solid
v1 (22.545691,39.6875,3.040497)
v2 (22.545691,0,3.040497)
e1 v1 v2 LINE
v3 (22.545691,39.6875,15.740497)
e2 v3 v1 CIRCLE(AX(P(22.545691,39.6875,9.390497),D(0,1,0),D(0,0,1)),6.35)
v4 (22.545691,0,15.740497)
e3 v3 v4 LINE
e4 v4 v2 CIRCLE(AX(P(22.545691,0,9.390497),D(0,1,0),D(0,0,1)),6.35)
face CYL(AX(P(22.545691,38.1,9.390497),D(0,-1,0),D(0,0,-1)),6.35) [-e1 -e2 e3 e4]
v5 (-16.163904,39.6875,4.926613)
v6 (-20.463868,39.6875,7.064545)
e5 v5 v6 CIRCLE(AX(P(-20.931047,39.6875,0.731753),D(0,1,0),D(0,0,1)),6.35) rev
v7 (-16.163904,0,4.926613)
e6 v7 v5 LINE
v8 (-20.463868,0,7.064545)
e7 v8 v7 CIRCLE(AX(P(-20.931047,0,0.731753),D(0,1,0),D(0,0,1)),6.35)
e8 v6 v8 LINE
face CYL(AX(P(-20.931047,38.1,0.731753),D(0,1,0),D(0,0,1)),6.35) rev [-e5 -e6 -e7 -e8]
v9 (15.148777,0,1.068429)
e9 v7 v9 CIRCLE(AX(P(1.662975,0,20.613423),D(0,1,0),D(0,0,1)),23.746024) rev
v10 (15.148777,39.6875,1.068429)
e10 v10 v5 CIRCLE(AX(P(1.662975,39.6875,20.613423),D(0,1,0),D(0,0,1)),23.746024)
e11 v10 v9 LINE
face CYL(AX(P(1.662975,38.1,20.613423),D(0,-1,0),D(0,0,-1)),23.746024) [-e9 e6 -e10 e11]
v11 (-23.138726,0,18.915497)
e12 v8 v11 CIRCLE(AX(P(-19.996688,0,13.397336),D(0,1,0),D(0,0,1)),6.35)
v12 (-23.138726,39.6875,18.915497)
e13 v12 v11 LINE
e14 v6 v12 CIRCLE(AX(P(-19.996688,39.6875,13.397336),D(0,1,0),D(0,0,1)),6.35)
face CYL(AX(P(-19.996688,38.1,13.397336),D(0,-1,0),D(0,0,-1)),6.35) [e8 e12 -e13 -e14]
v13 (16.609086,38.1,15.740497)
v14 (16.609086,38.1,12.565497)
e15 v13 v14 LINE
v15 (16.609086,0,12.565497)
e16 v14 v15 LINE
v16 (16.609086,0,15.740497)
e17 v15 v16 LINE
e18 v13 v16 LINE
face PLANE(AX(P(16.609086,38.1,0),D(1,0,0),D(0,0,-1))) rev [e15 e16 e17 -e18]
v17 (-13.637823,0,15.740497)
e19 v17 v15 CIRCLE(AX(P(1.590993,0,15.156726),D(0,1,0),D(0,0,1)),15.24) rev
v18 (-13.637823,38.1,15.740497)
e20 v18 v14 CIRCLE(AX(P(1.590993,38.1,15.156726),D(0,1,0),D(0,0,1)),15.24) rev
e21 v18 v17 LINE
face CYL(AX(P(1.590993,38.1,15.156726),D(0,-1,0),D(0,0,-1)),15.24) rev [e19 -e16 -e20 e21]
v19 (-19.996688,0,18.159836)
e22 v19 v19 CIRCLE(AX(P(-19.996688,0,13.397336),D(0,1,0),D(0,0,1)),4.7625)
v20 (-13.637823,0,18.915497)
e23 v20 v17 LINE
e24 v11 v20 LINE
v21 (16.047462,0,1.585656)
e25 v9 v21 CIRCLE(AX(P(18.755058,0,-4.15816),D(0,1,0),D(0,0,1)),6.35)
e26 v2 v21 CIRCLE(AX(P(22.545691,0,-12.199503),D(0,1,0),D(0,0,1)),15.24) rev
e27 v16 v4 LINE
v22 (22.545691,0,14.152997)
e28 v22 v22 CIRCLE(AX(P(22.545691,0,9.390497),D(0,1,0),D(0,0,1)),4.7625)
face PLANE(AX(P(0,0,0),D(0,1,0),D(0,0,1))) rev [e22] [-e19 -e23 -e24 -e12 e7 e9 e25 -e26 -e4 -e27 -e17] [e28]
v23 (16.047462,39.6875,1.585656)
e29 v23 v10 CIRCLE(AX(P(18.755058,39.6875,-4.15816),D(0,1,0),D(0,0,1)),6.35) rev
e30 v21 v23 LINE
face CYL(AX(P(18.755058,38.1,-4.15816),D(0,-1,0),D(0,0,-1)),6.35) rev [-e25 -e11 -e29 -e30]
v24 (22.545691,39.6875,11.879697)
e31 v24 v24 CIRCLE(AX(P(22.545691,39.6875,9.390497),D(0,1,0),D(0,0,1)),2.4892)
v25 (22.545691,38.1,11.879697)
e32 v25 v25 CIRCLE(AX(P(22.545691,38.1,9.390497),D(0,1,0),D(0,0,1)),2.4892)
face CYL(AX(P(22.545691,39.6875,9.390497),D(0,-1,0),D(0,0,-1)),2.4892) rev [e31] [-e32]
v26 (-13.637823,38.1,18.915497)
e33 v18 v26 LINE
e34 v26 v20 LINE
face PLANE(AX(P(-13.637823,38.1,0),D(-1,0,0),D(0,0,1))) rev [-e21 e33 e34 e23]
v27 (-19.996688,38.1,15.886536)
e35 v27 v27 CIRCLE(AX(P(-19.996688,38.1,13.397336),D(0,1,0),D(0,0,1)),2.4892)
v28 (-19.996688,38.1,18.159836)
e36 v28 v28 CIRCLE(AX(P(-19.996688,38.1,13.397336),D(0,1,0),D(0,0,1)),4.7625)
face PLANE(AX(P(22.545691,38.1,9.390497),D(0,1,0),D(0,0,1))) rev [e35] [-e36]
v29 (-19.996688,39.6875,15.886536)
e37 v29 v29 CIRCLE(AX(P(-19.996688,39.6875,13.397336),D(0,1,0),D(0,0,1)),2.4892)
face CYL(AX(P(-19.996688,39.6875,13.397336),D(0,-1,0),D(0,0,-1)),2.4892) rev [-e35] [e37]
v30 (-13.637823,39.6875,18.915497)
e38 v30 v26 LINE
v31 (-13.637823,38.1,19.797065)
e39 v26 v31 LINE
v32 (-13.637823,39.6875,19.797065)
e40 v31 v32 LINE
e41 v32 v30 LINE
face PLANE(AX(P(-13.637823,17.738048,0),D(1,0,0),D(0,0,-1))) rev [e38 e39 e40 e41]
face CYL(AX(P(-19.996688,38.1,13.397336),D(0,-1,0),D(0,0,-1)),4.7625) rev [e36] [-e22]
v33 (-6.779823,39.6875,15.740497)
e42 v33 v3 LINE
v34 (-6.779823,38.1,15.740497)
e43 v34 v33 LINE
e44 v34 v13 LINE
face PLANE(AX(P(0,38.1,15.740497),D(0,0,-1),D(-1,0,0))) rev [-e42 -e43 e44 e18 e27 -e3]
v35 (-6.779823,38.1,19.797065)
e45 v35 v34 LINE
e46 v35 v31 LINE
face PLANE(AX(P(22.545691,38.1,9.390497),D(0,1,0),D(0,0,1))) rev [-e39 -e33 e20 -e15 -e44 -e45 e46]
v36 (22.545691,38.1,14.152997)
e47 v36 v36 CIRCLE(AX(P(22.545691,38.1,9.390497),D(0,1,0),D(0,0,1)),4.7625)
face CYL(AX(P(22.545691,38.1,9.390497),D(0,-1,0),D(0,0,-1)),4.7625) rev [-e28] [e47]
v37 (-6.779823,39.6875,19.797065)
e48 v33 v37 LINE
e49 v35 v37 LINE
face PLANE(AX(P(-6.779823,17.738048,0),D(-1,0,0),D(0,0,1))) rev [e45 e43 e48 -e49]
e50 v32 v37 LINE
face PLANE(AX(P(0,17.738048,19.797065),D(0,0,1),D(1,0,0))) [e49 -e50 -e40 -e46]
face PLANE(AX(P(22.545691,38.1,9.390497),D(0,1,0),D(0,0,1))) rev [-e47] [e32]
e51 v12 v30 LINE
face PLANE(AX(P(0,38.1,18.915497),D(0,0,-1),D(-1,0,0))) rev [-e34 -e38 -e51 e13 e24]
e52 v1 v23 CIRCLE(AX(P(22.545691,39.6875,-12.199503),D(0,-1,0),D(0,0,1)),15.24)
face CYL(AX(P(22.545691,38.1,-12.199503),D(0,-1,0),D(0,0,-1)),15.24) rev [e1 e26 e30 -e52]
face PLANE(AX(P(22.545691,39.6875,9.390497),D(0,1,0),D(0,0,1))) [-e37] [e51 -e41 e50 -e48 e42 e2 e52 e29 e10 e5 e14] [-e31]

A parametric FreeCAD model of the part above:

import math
import FreeCAD as App
import Part
import Sketcher
Q = App.Units.Quantity


def edges_at(feature, points):
    """Names of the edges that pass closest to the given points."""
    edges = feature.Shape.Edges
    near = lambda p: min(range(len(edges)), key=lambda i: edges[i].distToShape(Part.Vertex(*p))[0])
    return sorted({f"Edge{near(p) + 1}" for p in points})


def add_polygon(sketch, points):
    """Adds a closed chain of lines whose ends are joined by coincident constraints."""
    first, n = sketch.GeometryCount, len(points)
    for a, b in zip(points, points[1:] + points[:1]):
        sketch.addGeometry(Part.LineSegment(App.Vector(*a, 0), App.Vector(*b, 0)), False)
    for i in range(n):
        sketch.addConstraint(Sketcher.Constraint("Coincident", first + i, 2, first + (i + 1) % n, 1))

doc = App.newDocument("Part")
body = doc.addObject("PartDesign::Body", "Body")

# Sketch on XZ plane
sketch1 = doc.addObject("Sketcher::SketchObject", "Sketch")
body.addObject(sketch1)
sketch1.AttachmentSupport = (doc.XZ_Plane, [""])
sketch1.MapMode = "FlatFace"
sketch1.addGeometry([
    Part.LineSegment(App.Vector(-13.637823, 18.915497, 0), App.Vector(-13.637823, 15.740497, 0)),  # 0
    Part.ArcOfCircle(Part.Circle(App.Vector(1.590993, 15.156726, 0), App.Vector(0, 0, 1), 15.24), math.radians(177.804739), math.radians(350.210543)),  # 1
    Part.LineSegment(App.Vector(16.609086, 12.565497, 0), App.Vector(16.609086, 15.740497, 0)),  # 2
    Part.LineSegment(App.Vector(16.609086, 15.740497, 0), App.Vector(22.545691, 15.740497, 0)),  # 3
    Part.ArcOfCircle(Part.Circle(App.Vector(22.545691, 9.390497, 0), App.Vector(0, 0, 1), 6.35), math.radians(-90), math.radians(90)),  # 4
    Part.ArcOfCircle(Part.Circle(App.Vector(22.545691, -12.199503, 0), App.Vector(0, 0, 1), 15.24), math.radians(90), math.radians(117.568097)),  # 5
    Part.ArcOfCircle(Part.Circle(App.Vector(1.662975, 20.613423, 0), App.Vector(0, 0, 1), 23.746023), math.radians(-144.380709), math.radians(-54.380709)),  # 6
    Part.ArcOfCircle(Part.Circle(App.Vector(-19.93993, -3.112506, 0), App.Vector(0, 0, 1), 10.16), math.radians(76.918102), math.radians(90.320083)),  # 7
    Part.ArcOfCircle(Part.Circle(App.Vector(-19.996688, 13.397336, 0), App.Vector(0, 0, 1), 6.35), math.radians(119.657161), math.radians(270)),  # 8
    Part.LineSegment(App.Vector(-23.138726, 18.915497, 0), App.Vector(-13.637823, 18.915497, 0)),  # 9
    Part.Circle(App.Vector(-19.996688, 13.397336, 0), App.Vector(0, 0, 1), 4.7625),  # 10
    Part.Circle(App.Vector(22.545691, 9.390497, 0), App.Vector(0, 0, 1), 4.7625),  # 11
], False)
sketch1.addConstraint([
    Sketcher.Constraint("Coincident", 0, 2, 1, 1),
    Sketcher.Constraint("Coincident", 1, 2, 2, 1),
    Sketcher.Constraint("Coincident", 2, 2, 3, 1),
    Sketcher.Constraint("Tangent", 3, 2, 4, 2),
    Sketcher.Constraint("Tangent", 4, 1, 5, 1),
    Sketcher.Constraint("Coincident", 5, 2, 6, 2),
    Sketcher.Constraint("Coincident", 6, 1, 7, 1),
    Sketcher.Constraint("Coincident", 7, 2, 8, 2),
    Sketcher.Constraint("Coincident", 8, 1, 9, 1),
    Sketcher.Constraint("Coincident", 9, 2, 0, 1),
    Sketcher.Constraint("Vertical", 0),
    Sketcher.Constraint("Vertical", 2),
    Sketcher.Constraint("Horizontal", 3),
    Sketcher.Constraint("Horizontal", 9),
    Sketcher.Constraint("Coincident", 10, 3, 8, 3),
    Sketcher.Constraint("Coincident", 11, 3, 4, 3),
    Sketcher.Constraint("Equal", 1, 5),
    Sketcher.Constraint("Equal", 4, 8),
    Sketcher.Constraint("Equal", 10, 11),
    Sketcher.Constraint("Horizontal", 0, 2, 2, 2),
    Sketcher.Constraint("Vertical", 4, 3, 5, 3),
    Sketcher.Constraint("Vertical", 10, 3, 7, 2),
    Sketcher.Constraint("Equal", 0, 2),
    Sketcher.Constraint("Radius", 1, Q("0.6 in")),
    Sketcher.Constraint("Radius", 7, Q("0.4 in")),
    Sketcher.Constraint("Radius", 4, Q("0.25 in")),
    Sketcher.Constraint("Diameter", 10, Q("0.375 in")),
    Sketcher.Constraint("DistanceY", 0, 2, 0, 1, Q("0.125 in")),
    Sketcher.Constraint("Radius", 6, 23.746023),
    Sketcher.Constraint("DistanceX", 1, 3, 4, 3, 20.954699),
    Sketcher.Constraint("DistanceX", 3, 1, 3, 2, 5.936605),
    Sketcher.Constraint("DistanceX", 9, 1, 9, 2, 9.500903),
    Sketcher.Constraint("DistanceX", -1, 1, 4, 3, 22.545691),
    Sketcher.Constraint("DistanceX", 7, 3, -1, 1, 19.93993),
    Sketcher.Constraint("DistanceX", 8, 3, -1, 1, 19.996688),
    Sketcher.Constraint("DistanceX", -1, 1, 5, 2, 15.492581),
    Sketcher.Constraint("DistanceY", -1, 1, 5, 2, 1.310169),
    Sketcher.Constraint("DistanceX", 6, 1, -1, 1, 17.640279),
])
pad1 = doc.addObject("PartDesign::Pad", "Pad")
body.addObject(pad1)
pad1.Profile = sketch1
pad1.Length = Q("1.5 in")
pad1.Reversed = True

# Sketch on XZ plane
sketch2 = doc.addObject("Sketcher::SketchObject", "Sketch001")
body.addObject(sketch2)
sketch2.AttachmentSupport = (doc.XZ_Plane, [""])
sketch2.MapMode = "FlatFace"
sketch2.AttachmentOffset = App.Placement(App.Vector(0, 0, -1.5 * 25.4), App.Rotation())
sketch2.addGeometry([
    Part.LineSegment(App.Vector(-13.637823, 15.740497, 0), App.Vector(-3.503807, 15.740497, 0)),  # 0
    Part.LineSegment(App.Vector(-3.503807, 15.740497, 0), App.Vector(-3.503807, 12.565497, 0)),  # 1
    Part.LineSegment(App.Vector(-3.503807, 12.565497, 0), App.Vector(16.609086, 12.565497, 0)),  # 2
    Part.LineSegment(App.Vector(16.609086, 12.565497, 0), App.Vector(16.609086, 15.740497, 0)),  # 3
    Part.LineSegment(App.Vector(16.609086, 15.740497, 0), App.Vector(22.545691, 15.740497, 0)),  # 4
    Part.ArcOfCircle(Part.Circle(App.Vector(22.545691, 9.390497, 0), App.Vector(0, 0, 1), 6.35), math.radians(-90), math.radians(90)),  # 5
    Part.ArcOfCircle(Part.Circle(App.Vector(22.545691, -12.199503, 0), App.Vector(0, 0, 1), 15.24), math.radians(90), math.radians(117.568097)),  # 6
    Part.ArcOfCircle(Part.Circle(App.Vector(1.662975, 20.613423, 0), App.Vector(0, 0, 1), 23.746023), math.radians(-144.380709), math.radians(-54.380709)),  # 7
    Part.ArcOfCircle(Part.Circle(App.Vector(-19.93993, -3.112506, 0), App.Vector(0, 0, 1), 10.16), math.radians(76.918102), math.radians(90.320083)),  # 8
    Part.ArcOfCircle(Part.Circle(App.Vector(-19.996688, 13.397336, 0), App.Vector(0, 0, 1), 6.35), math.radians(119.657161), math.radians(270)),  # 9
    Part.LineSegment(App.Vector(-23.138726, 18.915497, 0), App.Vector(-13.637823, 18.915497, 0)),  # 10
    Part.LineSegment(App.Vector(-13.637823, 18.915497, 0), App.Vector(-13.637823, 15.740497, 0)),  # 11
    Part.Circle(App.Vector(22.545691, 9.390497, 0), App.Vector(0, 0, 1), 2.4892),  # 12
    Part.Circle(App.Vector(-19.996688, 13.397336, 0), App.Vector(0, 0, 1), 2.4892),  # 13
], False)
sketch2.addConstraint([
    Sketcher.Constraint("Coincident", 0, 2, 1, 1),
    Sketcher.Constraint("Coincident", 1, 2, 2, 1),
    Sketcher.Constraint("Coincident", 2, 2, 3, 1),
    Sketcher.Constraint("Coincident", 3, 2, 4, 1),
    Sketcher.Constraint("Tangent", 4, 2, 5, 2),
    Sketcher.Constraint("Tangent", 5, 1, 6, 1),
    Sketcher.Constraint("Coincident", 6, 2, 7, 2),
    Sketcher.Constraint("Coincident", 7, 1, 8, 1),
    Sketcher.Constraint("Coincident", 8, 2, 9, 2),
    Sketcher.Constraint("Coincident", 9, 1, 10, 1),
    Sketcher.Constraint("Coincident", 10, 2, 11, 1),
    Sketcher.Constraint("Coincident", 11, 2, 0, 1),
    Sketcher.Constraint("Horizontal", 0),
    Sketcher.Constraint("Vertical", 1),
    Sketcher.Constraint("Horizontal", 2),
    Sketcher.Constraint("Vertical", 3),
    Sketcher.Constraint("Horizontal", 4),
    Sketcher.Constraint("Horizontal", 10),
    Sketcher.Constraint("Vertical", 11),
    Sketcher.Constraint("Coincident", 12, 3, 5, 3),
    Sketcher.Constraint("Coincident", 13, 3, 9, 3),
    Sketcher.Constraint("Equal", 5, 9),
    Sketcher.Constraint("Equal", 12, 13),
    Sketcher.Constraint("Horizontal", 0, 2, 3, 2),
    Sketcher.Constraint("Vertical", 5, 3, 6, 3),
    Sketcher.Constraint("Vertical", 13, 3, 8, 2),
    Sketcher.Constraint("Equal", 3, 11),
    Sketcher.Constraint("Radius", 6, Q("0.6 in")),
    Sketcher.Constraint("Radius", 8, Q("0.4 in")),
    Sketcher.Constraint("Radius", 5, Q("0.25 in")),
    Sketcher.Constraint("Diameter", 12, Q("0.196 in")),
    Sketcher.Constraint("DistanceY", 1, 2, 1, 1, Q("0.125 in")),
    Sketcher.Constraint("Radius", 7, 23.746023),
    Sketcher.Constraint("DistanceX", 0, 2, 5, 3, 26.049499),
    Sketcher.Constraint("DistanceX", 0, 1, 0, 2, 10.134015),
    Sketcher.Constraint("DistanceX", 2, 1, 2, 2, 20.112893),
    Sketcher.Constraint("DistanceX", 10, 1, 10, 2, 9.500903),
    Sketcher.Constraint("DistanceX", -1, 1, 5, 3, 22.545691),
    Sketcher.Constraint("DistanceX", 8, 3, -1, 1, 19.93993),
    Sketcher.Constraint("DistanceX", 9, 3, -1, 1, 19.996688),
    Sketcher.Constraint("DistanceX", -1, 1, 6, 2, 15.492581),
    Sketcher.Constraint("DistanceY", -1, 1, 6, 2, 1.310169),
    Sketcher.Constraint("DistanceX", 7, 1, -1, 1, 17.640279),
])
pad2 = doc.addObject("PartDesign::Pad", "Pad001")
body.addObject(pad2)
pad2.Profile = sketch2
pad2.Length = Q("0.0625 in")
pad2.Reversed = True

# Sketch on XZ plane
sketch3 = doc.addObject("Sketcher::SketchObject", "Sketch002")
body.addObject(sketch3)
sketch3.AttachmentSupport = (doc.XZ_Plane, [""])
sketch3.MapMode = "FlatFace"
sketch3.AttachmentOffset = App.Placement(App.Vector(0, 0, -1.5625 * 25.4), App.Rotation())
add_polygon(sketch3, [(-6.779823, 19.797065), (-6.779823, 15.740497), (-13.637823, 15.740497), (-13.637823, 19.797065)])  # lines 0-3
add_polygon(sketch3, [(16.609086, 15.740497), (16.609086, 12.565497), (-3.503807, 12.565497), (-3.503807, 15.740497)])  # lines 4-7
sketch3.addConstraint([
    Sketcher.Constraint("Vertical", 0),
    Sketcher.Constraint("Horizontal", 1),
    Sketcher.Constraint("Vertical", 2),
    Sketcher.Constraint("Horizontal", 3),
    Sketcher.Constraint("Vertical", 4),
    Sketcher.Constraint("Horizontal", 5),
    Sketcher.Constraint("Vertical", 6),
    Sketcher.Constraint("Horizontal", 7),
    Sketcher.Constraint("Horizontal", 1, 2, 6, 2),
    Sketcher.Constraint("DistanceX", 1, 2, 1, 1, Q("0.27 in")),
    Sketcher.Constraint("DistanceY", 4, 2, 4, 1, Q("0.125 in")),
    Sketcher.Constraint("DistanceY", 0, 2, 0, 1, 4.056568),
    Sketcher.Constraint("DistanceX", 5, 2, 5, 1, 20.112893),
    Sketcher.Constraint("DistanceX", 0, 2, 4, 2, 23.388909),
    Sketcher.Constraint("DistanceX", 0, 2, -1, 1, 6.779823),
    Sketcher.Constraint("DistanceY", -1, 1, 0, 2, 15.740497),
])
pad3 = doc.addObject("PartDesign::Pad", "Pad002")
body.addObject(pad3)
pad3.Profile = sketch3
pad3.Length = Q("0.0625 in")
doc.recompute()

fillet = doc.addObject("PartDesign::Fillet", "Fillet")
body.addObject(fillet)
fillet.Base = (pad3, edges_at(pad3, [(15.493, 19.844, 1.31), (-17.64, 19.844, 6.784)]))
fillet.Radius = Q("0.25 in")

doc.recompute()
